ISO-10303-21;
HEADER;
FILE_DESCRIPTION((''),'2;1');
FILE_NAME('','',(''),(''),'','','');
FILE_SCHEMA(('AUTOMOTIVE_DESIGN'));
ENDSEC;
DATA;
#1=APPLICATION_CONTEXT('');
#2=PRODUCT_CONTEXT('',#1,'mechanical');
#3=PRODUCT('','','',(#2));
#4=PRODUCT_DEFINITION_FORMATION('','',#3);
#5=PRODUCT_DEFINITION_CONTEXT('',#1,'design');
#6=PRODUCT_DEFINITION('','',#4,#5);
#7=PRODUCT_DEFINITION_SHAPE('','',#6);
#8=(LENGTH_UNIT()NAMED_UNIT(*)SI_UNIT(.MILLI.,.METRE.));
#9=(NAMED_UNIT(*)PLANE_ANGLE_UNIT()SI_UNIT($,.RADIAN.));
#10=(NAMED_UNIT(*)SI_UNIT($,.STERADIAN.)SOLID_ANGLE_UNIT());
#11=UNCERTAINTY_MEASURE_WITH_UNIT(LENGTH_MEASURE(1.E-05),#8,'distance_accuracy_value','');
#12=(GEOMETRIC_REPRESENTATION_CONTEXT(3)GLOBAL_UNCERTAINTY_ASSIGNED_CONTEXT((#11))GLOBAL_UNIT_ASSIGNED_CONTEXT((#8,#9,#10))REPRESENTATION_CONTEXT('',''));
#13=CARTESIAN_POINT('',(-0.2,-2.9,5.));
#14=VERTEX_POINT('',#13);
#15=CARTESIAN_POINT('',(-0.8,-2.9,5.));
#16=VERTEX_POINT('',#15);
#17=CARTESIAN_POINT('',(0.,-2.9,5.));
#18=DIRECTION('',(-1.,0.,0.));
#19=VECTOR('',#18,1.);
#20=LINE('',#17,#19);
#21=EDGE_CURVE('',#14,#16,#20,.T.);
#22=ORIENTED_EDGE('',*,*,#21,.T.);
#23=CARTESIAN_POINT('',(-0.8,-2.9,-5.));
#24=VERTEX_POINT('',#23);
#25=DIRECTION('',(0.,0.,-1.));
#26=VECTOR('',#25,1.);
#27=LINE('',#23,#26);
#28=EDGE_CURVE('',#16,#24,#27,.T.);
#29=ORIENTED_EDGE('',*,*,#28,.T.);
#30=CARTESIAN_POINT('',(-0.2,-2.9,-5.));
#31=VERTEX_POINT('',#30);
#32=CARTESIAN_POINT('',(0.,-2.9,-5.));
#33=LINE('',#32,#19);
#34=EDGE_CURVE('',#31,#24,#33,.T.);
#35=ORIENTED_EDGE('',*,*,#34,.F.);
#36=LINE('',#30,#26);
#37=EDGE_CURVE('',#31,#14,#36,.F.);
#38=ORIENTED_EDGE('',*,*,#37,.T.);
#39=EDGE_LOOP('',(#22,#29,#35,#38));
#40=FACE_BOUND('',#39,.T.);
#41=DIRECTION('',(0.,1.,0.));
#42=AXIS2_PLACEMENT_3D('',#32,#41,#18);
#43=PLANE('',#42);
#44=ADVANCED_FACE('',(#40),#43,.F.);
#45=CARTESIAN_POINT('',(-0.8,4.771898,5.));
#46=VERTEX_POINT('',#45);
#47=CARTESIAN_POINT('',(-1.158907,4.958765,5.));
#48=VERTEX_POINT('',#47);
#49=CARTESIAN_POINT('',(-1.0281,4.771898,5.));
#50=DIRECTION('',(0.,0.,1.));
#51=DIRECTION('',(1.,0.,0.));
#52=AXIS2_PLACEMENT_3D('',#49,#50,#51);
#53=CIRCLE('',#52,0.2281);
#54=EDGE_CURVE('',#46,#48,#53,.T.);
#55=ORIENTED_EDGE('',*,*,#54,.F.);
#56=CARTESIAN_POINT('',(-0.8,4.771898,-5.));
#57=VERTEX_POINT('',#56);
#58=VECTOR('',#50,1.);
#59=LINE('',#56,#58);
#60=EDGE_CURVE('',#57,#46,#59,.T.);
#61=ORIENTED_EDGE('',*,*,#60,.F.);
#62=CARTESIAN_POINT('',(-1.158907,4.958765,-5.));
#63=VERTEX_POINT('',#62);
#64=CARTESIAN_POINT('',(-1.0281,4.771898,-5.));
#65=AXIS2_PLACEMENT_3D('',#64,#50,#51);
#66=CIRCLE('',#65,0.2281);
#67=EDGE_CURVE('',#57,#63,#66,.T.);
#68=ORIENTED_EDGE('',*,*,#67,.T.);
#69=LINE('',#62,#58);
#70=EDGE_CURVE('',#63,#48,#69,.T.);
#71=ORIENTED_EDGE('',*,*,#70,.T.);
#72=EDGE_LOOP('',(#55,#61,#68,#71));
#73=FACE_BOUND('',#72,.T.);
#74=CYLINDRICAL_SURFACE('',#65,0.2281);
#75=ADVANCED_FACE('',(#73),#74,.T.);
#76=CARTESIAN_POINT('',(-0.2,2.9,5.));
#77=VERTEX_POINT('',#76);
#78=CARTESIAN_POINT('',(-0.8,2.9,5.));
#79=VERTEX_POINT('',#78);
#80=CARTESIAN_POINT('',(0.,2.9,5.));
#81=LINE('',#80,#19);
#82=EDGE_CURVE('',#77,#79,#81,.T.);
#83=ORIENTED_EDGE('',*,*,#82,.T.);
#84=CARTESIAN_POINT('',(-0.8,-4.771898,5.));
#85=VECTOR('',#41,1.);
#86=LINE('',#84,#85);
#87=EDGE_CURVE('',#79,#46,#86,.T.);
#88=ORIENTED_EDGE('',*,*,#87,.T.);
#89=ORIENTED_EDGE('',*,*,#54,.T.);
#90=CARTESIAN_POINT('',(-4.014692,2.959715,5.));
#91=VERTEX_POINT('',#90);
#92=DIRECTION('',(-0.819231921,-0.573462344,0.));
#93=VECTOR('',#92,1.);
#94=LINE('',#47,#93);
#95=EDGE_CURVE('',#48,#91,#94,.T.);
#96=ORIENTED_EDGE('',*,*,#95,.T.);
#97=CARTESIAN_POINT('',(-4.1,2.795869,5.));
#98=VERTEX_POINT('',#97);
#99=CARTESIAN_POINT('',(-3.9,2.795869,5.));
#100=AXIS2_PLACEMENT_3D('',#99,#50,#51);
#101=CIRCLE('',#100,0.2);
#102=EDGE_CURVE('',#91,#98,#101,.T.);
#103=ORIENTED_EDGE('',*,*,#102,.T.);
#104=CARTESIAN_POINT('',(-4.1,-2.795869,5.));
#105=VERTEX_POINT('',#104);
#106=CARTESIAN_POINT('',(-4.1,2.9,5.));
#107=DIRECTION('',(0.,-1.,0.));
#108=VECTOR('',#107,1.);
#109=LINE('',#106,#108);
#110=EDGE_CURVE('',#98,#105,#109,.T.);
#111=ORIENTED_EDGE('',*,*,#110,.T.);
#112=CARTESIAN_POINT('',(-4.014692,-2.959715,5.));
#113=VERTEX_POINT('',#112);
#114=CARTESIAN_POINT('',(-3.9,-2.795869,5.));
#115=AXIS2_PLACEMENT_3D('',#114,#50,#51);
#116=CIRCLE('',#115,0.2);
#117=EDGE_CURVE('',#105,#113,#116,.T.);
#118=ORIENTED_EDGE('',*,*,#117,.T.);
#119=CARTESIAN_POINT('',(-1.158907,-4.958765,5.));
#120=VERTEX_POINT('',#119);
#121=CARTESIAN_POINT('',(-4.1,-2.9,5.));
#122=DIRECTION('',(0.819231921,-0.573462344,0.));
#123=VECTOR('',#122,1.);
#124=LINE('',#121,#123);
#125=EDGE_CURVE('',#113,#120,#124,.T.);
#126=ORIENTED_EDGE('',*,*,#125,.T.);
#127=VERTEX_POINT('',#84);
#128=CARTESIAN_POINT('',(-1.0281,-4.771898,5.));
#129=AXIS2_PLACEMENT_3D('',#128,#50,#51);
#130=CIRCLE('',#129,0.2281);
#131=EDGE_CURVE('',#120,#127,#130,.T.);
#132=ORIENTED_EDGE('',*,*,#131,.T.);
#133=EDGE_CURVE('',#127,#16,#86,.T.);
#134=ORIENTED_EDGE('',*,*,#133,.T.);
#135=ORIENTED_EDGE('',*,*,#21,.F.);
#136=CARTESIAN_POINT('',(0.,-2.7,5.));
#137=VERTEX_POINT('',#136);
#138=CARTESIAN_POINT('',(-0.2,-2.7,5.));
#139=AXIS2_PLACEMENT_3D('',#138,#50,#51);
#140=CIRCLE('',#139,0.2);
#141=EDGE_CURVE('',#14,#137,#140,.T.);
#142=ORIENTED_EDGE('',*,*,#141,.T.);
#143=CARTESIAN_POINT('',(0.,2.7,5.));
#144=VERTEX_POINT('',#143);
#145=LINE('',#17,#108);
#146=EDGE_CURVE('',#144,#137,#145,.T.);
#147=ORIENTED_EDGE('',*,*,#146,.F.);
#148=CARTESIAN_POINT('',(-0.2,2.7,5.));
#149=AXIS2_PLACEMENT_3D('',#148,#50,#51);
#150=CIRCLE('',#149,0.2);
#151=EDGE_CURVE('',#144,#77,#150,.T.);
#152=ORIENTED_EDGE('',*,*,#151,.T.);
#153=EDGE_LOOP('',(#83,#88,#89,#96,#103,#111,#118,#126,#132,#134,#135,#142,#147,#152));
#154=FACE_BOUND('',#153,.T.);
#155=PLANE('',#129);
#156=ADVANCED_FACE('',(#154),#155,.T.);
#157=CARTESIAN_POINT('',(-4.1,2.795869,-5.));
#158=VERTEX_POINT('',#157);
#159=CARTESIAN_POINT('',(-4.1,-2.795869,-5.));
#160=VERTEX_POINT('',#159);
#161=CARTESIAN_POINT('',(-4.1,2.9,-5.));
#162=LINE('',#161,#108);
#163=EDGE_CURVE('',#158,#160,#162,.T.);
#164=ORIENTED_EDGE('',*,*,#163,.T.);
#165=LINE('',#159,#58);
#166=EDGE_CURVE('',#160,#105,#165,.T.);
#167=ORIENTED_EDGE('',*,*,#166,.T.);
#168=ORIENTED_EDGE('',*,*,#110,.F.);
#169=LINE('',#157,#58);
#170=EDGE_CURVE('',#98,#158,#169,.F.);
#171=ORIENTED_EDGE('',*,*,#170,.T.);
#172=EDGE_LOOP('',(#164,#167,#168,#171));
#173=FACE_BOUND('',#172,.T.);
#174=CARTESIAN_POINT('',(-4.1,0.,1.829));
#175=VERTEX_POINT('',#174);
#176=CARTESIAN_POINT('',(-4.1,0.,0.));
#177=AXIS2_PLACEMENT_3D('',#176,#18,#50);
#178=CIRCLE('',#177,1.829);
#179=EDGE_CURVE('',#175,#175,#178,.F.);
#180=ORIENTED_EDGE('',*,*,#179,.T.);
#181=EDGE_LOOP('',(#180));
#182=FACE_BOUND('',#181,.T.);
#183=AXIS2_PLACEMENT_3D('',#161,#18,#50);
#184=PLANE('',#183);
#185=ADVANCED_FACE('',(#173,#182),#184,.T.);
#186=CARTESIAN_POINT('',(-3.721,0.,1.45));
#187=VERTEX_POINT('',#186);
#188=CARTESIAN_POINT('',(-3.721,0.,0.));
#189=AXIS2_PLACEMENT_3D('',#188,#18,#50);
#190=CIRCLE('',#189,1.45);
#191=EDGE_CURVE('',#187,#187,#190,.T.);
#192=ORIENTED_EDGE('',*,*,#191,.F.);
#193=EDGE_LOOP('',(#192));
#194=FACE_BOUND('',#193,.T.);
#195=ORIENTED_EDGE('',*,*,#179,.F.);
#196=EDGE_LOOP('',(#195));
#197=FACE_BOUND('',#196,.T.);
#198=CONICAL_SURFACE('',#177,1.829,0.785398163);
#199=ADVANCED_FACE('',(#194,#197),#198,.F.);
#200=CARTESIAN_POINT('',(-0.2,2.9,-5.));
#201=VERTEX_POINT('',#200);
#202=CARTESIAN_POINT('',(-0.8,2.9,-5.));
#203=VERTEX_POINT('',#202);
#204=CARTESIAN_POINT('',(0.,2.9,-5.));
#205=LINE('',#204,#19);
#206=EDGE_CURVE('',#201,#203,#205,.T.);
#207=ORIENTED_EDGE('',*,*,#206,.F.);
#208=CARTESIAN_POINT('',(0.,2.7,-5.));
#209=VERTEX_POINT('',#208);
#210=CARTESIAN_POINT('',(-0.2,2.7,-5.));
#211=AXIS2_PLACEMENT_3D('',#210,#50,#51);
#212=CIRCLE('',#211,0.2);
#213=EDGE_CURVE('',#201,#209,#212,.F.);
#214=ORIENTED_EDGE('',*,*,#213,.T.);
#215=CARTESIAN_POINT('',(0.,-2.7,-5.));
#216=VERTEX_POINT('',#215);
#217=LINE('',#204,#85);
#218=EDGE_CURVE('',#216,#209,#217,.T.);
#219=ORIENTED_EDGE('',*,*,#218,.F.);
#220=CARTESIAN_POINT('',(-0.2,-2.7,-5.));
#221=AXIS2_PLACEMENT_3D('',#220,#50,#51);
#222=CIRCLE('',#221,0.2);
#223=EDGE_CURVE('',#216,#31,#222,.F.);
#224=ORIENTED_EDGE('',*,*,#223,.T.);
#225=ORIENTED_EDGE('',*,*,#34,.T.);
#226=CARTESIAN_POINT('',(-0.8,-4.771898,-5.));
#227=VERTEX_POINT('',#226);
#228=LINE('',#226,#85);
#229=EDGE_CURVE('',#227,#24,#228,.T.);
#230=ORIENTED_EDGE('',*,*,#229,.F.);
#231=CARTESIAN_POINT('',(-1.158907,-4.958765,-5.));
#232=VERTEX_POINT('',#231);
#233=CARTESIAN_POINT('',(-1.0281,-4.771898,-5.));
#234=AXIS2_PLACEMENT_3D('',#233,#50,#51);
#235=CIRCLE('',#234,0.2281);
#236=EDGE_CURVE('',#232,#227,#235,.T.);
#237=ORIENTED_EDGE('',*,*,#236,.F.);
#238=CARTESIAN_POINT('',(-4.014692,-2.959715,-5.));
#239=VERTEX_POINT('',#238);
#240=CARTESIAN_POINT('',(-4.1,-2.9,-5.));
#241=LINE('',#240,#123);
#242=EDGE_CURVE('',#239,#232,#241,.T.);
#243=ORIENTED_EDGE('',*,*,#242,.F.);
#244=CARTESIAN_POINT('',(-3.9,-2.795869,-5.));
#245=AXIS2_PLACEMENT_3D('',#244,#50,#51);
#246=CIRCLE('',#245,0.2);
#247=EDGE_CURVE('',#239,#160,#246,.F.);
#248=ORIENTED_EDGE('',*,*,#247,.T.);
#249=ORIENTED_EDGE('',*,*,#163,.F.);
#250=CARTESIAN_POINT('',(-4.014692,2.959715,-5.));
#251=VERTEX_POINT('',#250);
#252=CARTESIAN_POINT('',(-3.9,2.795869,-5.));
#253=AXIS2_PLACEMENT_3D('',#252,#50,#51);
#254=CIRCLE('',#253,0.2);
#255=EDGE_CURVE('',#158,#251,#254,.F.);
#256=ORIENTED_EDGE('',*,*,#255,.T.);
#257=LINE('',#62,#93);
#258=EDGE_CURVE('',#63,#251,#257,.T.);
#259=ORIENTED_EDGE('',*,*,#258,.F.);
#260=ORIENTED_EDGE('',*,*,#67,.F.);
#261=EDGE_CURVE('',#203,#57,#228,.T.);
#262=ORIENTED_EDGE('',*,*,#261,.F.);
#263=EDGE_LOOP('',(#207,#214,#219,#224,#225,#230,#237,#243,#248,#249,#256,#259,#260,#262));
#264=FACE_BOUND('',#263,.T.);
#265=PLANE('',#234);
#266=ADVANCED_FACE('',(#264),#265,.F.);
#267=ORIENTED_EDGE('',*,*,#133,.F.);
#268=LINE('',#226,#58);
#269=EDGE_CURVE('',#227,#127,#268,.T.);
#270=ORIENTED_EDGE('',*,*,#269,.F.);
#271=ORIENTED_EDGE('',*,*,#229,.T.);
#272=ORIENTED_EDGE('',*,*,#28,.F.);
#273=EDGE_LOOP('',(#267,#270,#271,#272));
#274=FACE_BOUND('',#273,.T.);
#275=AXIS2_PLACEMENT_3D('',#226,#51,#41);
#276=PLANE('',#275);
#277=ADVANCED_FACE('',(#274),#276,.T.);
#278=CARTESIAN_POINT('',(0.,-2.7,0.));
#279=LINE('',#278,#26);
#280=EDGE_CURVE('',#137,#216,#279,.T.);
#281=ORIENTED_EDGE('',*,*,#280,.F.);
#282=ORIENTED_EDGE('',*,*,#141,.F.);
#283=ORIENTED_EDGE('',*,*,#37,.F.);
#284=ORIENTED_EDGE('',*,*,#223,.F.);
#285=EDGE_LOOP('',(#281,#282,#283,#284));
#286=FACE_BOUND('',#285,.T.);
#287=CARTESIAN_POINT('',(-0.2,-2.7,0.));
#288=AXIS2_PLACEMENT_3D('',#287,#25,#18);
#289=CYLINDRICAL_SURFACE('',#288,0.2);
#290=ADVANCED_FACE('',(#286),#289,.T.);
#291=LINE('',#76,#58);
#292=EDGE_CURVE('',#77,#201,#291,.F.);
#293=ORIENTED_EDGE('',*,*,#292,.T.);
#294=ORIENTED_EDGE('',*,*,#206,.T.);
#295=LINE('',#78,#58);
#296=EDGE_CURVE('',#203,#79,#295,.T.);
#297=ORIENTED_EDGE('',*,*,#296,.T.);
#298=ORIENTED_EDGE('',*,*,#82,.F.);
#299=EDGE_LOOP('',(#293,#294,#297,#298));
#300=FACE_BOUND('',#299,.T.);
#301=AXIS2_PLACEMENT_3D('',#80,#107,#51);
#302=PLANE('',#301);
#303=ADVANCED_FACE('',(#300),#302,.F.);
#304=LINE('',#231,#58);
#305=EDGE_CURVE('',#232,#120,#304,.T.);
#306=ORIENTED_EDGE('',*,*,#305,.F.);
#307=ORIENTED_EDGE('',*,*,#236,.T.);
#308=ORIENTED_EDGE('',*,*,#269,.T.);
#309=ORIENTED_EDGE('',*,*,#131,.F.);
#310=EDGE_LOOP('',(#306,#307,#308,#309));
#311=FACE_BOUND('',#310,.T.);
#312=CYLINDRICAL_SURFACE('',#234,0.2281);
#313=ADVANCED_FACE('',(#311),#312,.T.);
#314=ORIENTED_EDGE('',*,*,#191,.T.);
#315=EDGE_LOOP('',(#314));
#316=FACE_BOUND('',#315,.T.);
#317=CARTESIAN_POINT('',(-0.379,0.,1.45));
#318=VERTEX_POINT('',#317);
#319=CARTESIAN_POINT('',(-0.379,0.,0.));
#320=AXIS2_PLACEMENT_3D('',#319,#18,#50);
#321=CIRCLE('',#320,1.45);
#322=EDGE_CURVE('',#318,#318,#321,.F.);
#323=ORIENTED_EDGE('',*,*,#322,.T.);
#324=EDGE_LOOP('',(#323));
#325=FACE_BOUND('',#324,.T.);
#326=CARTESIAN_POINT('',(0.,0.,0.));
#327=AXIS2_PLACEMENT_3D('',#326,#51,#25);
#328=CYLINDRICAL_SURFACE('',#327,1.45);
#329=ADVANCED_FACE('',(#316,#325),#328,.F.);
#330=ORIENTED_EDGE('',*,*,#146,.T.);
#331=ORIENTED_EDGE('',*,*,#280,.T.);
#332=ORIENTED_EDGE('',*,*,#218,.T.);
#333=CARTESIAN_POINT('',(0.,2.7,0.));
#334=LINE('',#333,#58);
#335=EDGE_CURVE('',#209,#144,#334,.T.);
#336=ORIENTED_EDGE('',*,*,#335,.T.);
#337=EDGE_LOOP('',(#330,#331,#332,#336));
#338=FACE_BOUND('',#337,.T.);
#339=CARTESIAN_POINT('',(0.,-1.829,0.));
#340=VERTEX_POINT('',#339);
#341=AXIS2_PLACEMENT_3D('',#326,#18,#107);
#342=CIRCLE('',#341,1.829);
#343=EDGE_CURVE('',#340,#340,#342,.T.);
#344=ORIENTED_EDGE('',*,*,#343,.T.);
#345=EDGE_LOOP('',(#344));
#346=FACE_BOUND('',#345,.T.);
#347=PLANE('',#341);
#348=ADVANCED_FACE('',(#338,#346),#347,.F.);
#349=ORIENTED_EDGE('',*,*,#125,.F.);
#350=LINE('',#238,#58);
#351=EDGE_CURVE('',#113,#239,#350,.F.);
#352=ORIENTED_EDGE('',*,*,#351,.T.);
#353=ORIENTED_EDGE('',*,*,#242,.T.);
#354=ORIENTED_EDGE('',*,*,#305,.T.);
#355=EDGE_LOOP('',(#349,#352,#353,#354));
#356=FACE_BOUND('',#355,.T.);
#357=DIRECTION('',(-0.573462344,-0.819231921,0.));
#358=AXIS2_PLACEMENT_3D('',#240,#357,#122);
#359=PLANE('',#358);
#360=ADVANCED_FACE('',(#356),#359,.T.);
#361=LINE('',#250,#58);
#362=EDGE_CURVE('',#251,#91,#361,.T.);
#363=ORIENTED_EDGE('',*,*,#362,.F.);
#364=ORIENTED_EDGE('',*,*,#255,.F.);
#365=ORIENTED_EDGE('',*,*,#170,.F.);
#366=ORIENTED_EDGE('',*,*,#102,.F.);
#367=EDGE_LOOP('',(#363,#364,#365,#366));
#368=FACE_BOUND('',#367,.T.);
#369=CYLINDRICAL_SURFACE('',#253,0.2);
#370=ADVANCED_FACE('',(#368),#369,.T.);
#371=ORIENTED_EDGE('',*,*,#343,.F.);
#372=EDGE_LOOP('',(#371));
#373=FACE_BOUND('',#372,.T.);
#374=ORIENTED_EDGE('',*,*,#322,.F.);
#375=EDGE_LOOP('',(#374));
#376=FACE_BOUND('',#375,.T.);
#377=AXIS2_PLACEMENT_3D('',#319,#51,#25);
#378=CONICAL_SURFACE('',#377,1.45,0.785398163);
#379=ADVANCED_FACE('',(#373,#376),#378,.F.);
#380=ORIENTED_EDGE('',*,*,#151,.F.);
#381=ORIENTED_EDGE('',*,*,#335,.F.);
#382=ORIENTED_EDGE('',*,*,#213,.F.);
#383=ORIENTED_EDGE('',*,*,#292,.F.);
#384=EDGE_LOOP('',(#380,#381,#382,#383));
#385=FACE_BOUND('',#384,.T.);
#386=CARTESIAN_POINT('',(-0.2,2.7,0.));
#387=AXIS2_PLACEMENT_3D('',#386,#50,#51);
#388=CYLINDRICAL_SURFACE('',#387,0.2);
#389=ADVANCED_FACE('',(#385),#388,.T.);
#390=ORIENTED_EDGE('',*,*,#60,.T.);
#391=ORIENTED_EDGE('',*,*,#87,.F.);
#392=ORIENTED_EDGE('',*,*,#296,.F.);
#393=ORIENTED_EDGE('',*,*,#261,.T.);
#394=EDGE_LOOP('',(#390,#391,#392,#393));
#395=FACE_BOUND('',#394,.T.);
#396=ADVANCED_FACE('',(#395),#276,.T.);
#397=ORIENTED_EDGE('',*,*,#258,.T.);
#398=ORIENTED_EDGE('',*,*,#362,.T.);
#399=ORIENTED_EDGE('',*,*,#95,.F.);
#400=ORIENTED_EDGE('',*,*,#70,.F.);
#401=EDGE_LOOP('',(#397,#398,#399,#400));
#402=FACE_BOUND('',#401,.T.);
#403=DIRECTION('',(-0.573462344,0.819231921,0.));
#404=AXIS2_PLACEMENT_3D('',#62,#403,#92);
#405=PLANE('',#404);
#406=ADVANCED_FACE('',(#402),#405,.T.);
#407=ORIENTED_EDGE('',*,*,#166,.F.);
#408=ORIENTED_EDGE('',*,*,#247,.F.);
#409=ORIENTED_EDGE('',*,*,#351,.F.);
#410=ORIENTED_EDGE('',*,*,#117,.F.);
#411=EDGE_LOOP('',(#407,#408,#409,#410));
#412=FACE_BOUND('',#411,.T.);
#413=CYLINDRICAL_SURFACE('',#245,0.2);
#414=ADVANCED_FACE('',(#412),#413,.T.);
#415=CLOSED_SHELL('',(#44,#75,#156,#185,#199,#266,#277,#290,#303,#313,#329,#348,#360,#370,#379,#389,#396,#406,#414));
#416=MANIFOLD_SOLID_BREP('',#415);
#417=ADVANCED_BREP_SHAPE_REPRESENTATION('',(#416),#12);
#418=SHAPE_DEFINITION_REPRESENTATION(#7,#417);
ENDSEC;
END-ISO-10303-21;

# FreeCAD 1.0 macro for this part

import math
import FreeCAD as App
import Part
import Sketcher
Q = App.Units.Quantity


def edges_at(feature, points):
    """Names of the edges that pass closest to the given points."""
    edges = feature.Shape.Edges
    near = lambda p: min(range(len(edges)), key=lambda i: edges[i].distToShape(Part.Vertex(*p))[0])
    return sorted({f"Edge{near(p) + 1}" for p in points})

doc = App.newDocument("Part")
body = doc.addObject("PartDesign::Body", "Body")

sketch1 = doc.addObject("Sketcher::SketchObject", "Sketch")
body.addObject(sketch1)
sketch1.AttachmentSupport = (doc.XY_Plane, [""])
sketch1.MapMode = "FlatFace"
sketch1.AttachmentOffset = App.Placement(App.Vector(0, 0, 5), App.Rotation())
sketch1.addGeometry([
    Part.LineSegment(App.Vector(-0.8, -4.77, 0), App.Vector(-0.8, 4.77, 0)),
    Part.ArcOfCircle(Part.Circle(App.Vector(-1.03, 4.77, 0), App.Vector(0, 0, 1), 0.23), math.radians(0), math.radians(125)),
    Part.LineSegment(App.Vector(-1.16, 4.96, 0), App.Vector(-4.1, 2.9, 0)),
    Part.LineSegment(App.Vector(-4.1, 2.9, 0), App.Vector(-4.1, -2.9, 0)),
    Part.LineSegment(App.Vector(-4.1, -2.9, 0), App.Vector(-1.16, -4.96, 0)),
    Part.ArcOfCircle(Part.Circle(App.Vector(-1.03, -4.77, 0), App.Vector(0, 0, 1), 0.23), math.radians(-125), math.radians(0)),
], False)
sketch1.addConstraint([
    Sketcher.Constraint("Tangent", 0, 2, 1, 1),
    Sketcher.Constraint("Tangent", 1, 2, 2, 1),
    Sketcher.Constraint("Coincident", 2, 2, 3, 1),
    Sketcher.Constraint("Coincident", 3, 2, 4, 1),
    Sketcher.Constraint("Tangent", 4, 2, 5, 1),
    Sketcher.Constraint("Tangent", 5, 2, 0, 1),
    Sketcher.Constraint("Vertical", 0),
    Sketcher.Constraint("Vertical", 3),
    Sketcher.Constraint("Equal", 1, 5),
    Sketcher.Constraint("Symmetric", 1, 2, 4, 2, -1),
    Sketcher.Constraint("DistanceY", 3, 2, 3, 1, Q("5.8 mm")),
    Sketcher.Constraint("DistanceX", 0, 2, -1, 1, Q("0.8 mm")),
    Sketcher.Constraint("DistanceX", 2, 2, -1, 1, Q("4.1 mm")),
    Sketcher.Constraint("Radius", 1, Q("0.2281 mm")),
    Sketcher.Constraint("DistanceY", -1, 1, 1, 3, Q("4.771898 mm")),
])
pad1 = doc.addObject("PartDesign::Pad", "Pad")
body.addObject(pad1)
pad1.Profile = sketch1
pad1.Length = 10
pad1.Reversed = True

sketch2 = doc.addObject("Sketcher::SketchObject", "Sketch001")
body.addObject(sketch2)
sketch2.AttachmentSupport = (doc.YZ_Plane, [""])
sketch2.MapMode = "FlatFace"
sketch2.AttachmentOffset = App.Placement(App.Vector(0, 0, -0.8), App.Rotation())
sketch2.addGeometry([
    Part.LineSegment(App.Vector(3, 5, 0), App.Vector(-3, 5, 0)),
    Part.LineSegment(App.Vector(-3, 5, 0), App.Vector(-3, -5, 0)),
    Part.LineSegment(App.Vector(-3, -5, 0), App.Vector(3, -5, 0)),
    Part.LineSegment(App.Vector(3, -5, 0), App.Vector(3, 5, 0)),
], False)
sketch2.addConstraint([
    Sketcher.Constraint("Coincident", 0, 2, 1, 1),
    Sketcher.Constraint("Coincident", 1, 2, 2, 1),
    Sketcher.Constraint("Coincident", 2, 2, 3, 1),
    Sketcher.Constraint("Coincident", 3, 2, 0, 1),
    Sketcher.Constraint("Horizontal", 0),
    Sketcher.Constraint("Vertical", 1),
    Sketcher.Constraint("Horizontal", 2),
    Sketcher.Constraint("Vertical", 3),
    Sketcher.Constraint("Symmetric", 0, 2, 2, 2, -1, 1),
    Sketcher.Constraint("DistanceY", 1, 2, 1, 1, Q("10 mm")),
    Sketcher.Constraint("DistanceX", 0, 2, 0, 1, Q("5.8 mm")),
])
pad2 = doc.addObject("PartDesign::Pad", "Pad001")
body.addObject(pad2)
pad2.Profile = sketch2
pad2.Length = 0.8

sketch3 = doc.addObject("Sketcher::SketchObject", "Sketch002")
body.addObject(sketch3)
sketch3.AttachmentSupport = (doc.YZ_Plane, [""])
sketch3.MapMode = "FlatFace"
sketch3.addGeometry(Part.Circle(App.Vector(0, 0, 0), App.Vector(0, 0, 1), 1.4), False)
sketch3.addConstraint([
    Sketcher.Constraint("Coincident", 0, 3, -1, 1),
    Sketcher.Constraint("Diameter", 0, Q("2.9 mm")),
])
doc.recompute()
hole = doc.addObject("PartDesign::Hole", "Hole")
body.addObject(hole)
hole.Profile = sketch3
hole.ThreadType = "None"
hole.Diameter = 2.9
hole.DepthType = "ThroughAll"
doc.recompute()

chamfer = doc.addObject("PartDesign::Chamfer", "Chamfer")
body.addObject(chamfer)
chamfer.Base = (hole, edges_at(hole, [(0, 0, -1.45), (-4.1, 0, -1.45)]))
chamfer.Size = 0.379
doc.recompute()

fillet = doc.addObject("PartDesign::Fillet", "Fillet")
body.addObject(fillet)
fillet.Base = (chamfer, edges_at(chamfer, [
    (-4.1, -2.9, 0),
    (-4.1, 2.9, 0),
    (0, 2.9, 0),
    (0, -2.9, 0),
]))
fillet.Radius = 0.2

doc.recompute()
